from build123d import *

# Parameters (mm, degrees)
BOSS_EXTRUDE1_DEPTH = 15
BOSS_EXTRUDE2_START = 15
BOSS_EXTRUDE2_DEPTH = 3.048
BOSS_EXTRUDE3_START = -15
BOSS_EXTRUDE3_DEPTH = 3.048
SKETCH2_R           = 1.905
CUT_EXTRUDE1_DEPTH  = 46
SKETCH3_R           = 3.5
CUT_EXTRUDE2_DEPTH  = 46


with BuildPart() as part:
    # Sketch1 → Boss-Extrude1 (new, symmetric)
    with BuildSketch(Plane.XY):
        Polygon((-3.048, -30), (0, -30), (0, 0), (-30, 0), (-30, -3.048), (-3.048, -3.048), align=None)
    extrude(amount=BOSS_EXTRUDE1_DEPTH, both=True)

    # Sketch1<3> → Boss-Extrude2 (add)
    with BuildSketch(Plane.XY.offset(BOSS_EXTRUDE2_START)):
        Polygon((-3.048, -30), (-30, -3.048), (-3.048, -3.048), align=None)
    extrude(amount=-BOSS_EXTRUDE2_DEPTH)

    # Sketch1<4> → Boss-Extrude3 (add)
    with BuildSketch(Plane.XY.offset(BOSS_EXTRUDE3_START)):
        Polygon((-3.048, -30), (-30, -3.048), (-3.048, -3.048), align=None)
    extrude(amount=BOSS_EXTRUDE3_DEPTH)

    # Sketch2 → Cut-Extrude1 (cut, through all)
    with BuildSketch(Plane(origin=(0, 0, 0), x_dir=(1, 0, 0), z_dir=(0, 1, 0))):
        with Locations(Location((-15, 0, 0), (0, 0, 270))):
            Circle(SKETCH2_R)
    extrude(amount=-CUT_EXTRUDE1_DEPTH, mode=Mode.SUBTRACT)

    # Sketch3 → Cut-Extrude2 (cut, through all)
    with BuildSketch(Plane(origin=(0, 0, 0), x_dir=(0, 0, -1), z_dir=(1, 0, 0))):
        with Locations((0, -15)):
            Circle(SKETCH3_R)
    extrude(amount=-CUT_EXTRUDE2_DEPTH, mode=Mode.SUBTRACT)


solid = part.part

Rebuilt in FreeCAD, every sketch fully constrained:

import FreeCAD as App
import Part
import Sketcher
from FreeCAD import Vector


def add_polygon(sketch, points):
    """Adds a closed chain of lines whose ends are joined by coincident constraints."""
    first, n = sketch.GeometryCount, len(points)
    for a, b in zip(points, points[1:] + points[:1]):
        sketch.addGeometry(Part.LineSegment(App.Vector(*a, 0), App.Vector(*b, 0)), False)
    for i in range(n):
        sketch.addConstraint(Sketcher.Constraint("Coincident", first + i, 2, first + (i + 1) % n, 1))

doc = App.newDocument("Part")
params = doc.addObject("Spreadsheet::Sheet", "Params")
for row, (alias, value) in enumerate([
    ("sketch1_width", "30 mm"),
    ("pad1_length", "30 mm"),
    ("pad2_length", "3.048 mm"),
    ("pad3_length", "3.048 mm"),
    ("sketch4_diameter", "3.81 mm"),
    ("sketch5_diameter", "7 mm"),
], start=1):
    params.set(f"A{row}", alias)
    params.set(f"B{row}", "=" + value)
    params.setAlias(f"B{row}", alias)

body = doc.addObject("PartDesign::Body", "Body")

# Sketch on XY plane
sketch1 = body.newObject("Sketcher::SketchObject", "Sketch")
sketch1.AttachmentSupport = (doc.getObject("XY_Plane"), [""])
sketch1.MapMode = "FlatFace"
add_polygon(sketch1, [(-3, -30), (0, -30), (0, 0), (-30, 0), (-30, -3), (-3, -3)])  # lines 0-5
sketch1.addConstraint([
    Sketcher.Constraint("Horizontal", 0),
    Sketcher.Constraint("Vertical", 1),
    Sketcher.Constraint("Horizontal", 2),
    Sketcher.Constraint("Vertical", 3),
    Sketcher.Constraint("Horizontal", 4),
    Sketcher.Constraint("Vertical", 5),
    Sketcher.Constraint("Coincident", 1, 2, -1, 1),
    Sketcher.Constraint("Equal", 2, 1),
    Sketcher.Constraint("Equal", 0, 3),
    Sketcher.Constraint("DistanceX", 2, 2, 2, 1, 30.0),
    Sketcher.Constraint("DistanceX", 0, 1, 0, 2, 3.048),
])
sketch1.setExpression("Constraints[15]", "Params.sketch1_width")
pad1 = body.newObject("PartDesign::Pad", "Pad")
pad1.Profile = sketch1
pad1.setExpression("Length", "Params.pad1_length")
pad1.Midplane = True

# Sketch on XY plane
sketch2 = body.newObject("Sketcher::SketchObject", "Sketch001")
sketch2.AttachmentSupport = (doc.getObject("XY_Plane"), [""])
sketch2.MapMode = "FlatFace"
sketch2.AttachmentOffset = App.Placement(Vector(0, 0, 15), App.Rotation())
add_polygon(sketch2, [(-30, -3), (-3, -30), (-3, -3)])  # lines 0-2
sketch2.addConstraint([
    Sketcher.Constraint("Vertical", 1),
    Sketcher.Constraint("Horizontal", 2),
    Sketcher.Constraint("Equal", 2, 1),
    Sketcher.Constraint("DistanceY", 0, 2, -1, 1, 30.0),
    Sketcher.Constraint("DistanceX", 2, 2, -1, 1, 30.0),
    Sketcher.Constraint("DistanceX", 2, 2, 2, 1, 26.952),
])
pad2 = body.newObject("PartDesign::Pad", "Pad001")
pad2.Profile = sketch2
pad2.setExpression("Length", "Params.pad2_length")
pad2.Reversed = True

# Sketch on XY plane
sketch3 = body.newObject("Sketcher::SketchObject", "Sketch002")
sketch3.AttachmentSupport = (doc.getObject("XY_Plane"), [""])
sketch3.MapMode = "FlatFace"
sketch3.AttachmentOffset = App.Placement(Vector(0, 0, -15), App.Rotation())
add_polygon(sketch3, [(-30, -3), (-3, -30), (-3, -3)])  # lines 0-2
sketch3.addConstraint([
    Sketcher.Constraint("Vertical", 1),
    Sketcher.Constraint("Horizontal", 2),
    Sketcher.Constraint("Equal", 2, 1),
    Sketcher.Constraint("DistanceY", 0, 2, -1, 1, 30.0),
    Sketcher.Constraint("DistanceX", 2, 2, -1, 1, 30.0),
    Sketcher.Constraint("DistanceX", 2, 2, 2, 1, 26.952),
])
pad3 = body.newObject("PartDesign::Pad", "Pad002")
pad3.Profile = sketch3
pad3.setExpression("Length", "Params.pad3_length")

# Sketch on XZ plane
sketch4 = body.newObject("Sketcher::SketchObject", "Sketch003")
sketch4.AttachmentSupport = (doc.getObject("XZ_Plane"), [""])
sketch4.MapMode = "FlatFace"
sketch4.addGeometry(Part.Circle(Vector(-15, 0, 0), Vector(0, 0, 1), 1.9), False)
sketch4.addConstraint([
    Sketcher.Constraint("PointOnObject", 0, 3, -1),
    Sketcher.Constraint("Diameter", 0, 3.81),
    Sketcher.Constraint("DistanceX", 0, 3, -1, 1, 15.0),
])
sketch4.setExpression("Constraints[1]", "Params.sketch4_diameter")
pocket1 = body.newObject("PartDesign::Pocket", "Pocket")
pocket1.Profile = sketch4
pocket1.Type = "ThroughAll"
pocket1.Reversed = True

# Sketch on YZ plane
sketch5 = body.newObject("Sketcher::SketchObject", "Sketch004")
sketch5.AttachmentSupport = (doc.getObject("YZ_Plane"), [""])
sketch5.MapMode = "FlatFace"
sketch5.addGeometry(Part.Circle(Vector(-15, 0, 0), Vector(0, 0, 1), 3.5), False)
sketch5.addConstraint([
    Sketcher.Constraint("PointOnObject", 0, 3, -1),
    Sketcher.Constraint("Diameter", 0, 7.0),
    Sketcher.Constraint("DistanceX", 0, 3, -1, 1, 15.0),
])
sketch5.setExpression("Constraints[1]", "Params.sketch5_diameter")
pocket2 = body.newObject("PartDesign::Pocket", "Pocket001")
pocket2.Profile = sketch5
pocket2.Type = "ThroughAll"

doc.recompute()
